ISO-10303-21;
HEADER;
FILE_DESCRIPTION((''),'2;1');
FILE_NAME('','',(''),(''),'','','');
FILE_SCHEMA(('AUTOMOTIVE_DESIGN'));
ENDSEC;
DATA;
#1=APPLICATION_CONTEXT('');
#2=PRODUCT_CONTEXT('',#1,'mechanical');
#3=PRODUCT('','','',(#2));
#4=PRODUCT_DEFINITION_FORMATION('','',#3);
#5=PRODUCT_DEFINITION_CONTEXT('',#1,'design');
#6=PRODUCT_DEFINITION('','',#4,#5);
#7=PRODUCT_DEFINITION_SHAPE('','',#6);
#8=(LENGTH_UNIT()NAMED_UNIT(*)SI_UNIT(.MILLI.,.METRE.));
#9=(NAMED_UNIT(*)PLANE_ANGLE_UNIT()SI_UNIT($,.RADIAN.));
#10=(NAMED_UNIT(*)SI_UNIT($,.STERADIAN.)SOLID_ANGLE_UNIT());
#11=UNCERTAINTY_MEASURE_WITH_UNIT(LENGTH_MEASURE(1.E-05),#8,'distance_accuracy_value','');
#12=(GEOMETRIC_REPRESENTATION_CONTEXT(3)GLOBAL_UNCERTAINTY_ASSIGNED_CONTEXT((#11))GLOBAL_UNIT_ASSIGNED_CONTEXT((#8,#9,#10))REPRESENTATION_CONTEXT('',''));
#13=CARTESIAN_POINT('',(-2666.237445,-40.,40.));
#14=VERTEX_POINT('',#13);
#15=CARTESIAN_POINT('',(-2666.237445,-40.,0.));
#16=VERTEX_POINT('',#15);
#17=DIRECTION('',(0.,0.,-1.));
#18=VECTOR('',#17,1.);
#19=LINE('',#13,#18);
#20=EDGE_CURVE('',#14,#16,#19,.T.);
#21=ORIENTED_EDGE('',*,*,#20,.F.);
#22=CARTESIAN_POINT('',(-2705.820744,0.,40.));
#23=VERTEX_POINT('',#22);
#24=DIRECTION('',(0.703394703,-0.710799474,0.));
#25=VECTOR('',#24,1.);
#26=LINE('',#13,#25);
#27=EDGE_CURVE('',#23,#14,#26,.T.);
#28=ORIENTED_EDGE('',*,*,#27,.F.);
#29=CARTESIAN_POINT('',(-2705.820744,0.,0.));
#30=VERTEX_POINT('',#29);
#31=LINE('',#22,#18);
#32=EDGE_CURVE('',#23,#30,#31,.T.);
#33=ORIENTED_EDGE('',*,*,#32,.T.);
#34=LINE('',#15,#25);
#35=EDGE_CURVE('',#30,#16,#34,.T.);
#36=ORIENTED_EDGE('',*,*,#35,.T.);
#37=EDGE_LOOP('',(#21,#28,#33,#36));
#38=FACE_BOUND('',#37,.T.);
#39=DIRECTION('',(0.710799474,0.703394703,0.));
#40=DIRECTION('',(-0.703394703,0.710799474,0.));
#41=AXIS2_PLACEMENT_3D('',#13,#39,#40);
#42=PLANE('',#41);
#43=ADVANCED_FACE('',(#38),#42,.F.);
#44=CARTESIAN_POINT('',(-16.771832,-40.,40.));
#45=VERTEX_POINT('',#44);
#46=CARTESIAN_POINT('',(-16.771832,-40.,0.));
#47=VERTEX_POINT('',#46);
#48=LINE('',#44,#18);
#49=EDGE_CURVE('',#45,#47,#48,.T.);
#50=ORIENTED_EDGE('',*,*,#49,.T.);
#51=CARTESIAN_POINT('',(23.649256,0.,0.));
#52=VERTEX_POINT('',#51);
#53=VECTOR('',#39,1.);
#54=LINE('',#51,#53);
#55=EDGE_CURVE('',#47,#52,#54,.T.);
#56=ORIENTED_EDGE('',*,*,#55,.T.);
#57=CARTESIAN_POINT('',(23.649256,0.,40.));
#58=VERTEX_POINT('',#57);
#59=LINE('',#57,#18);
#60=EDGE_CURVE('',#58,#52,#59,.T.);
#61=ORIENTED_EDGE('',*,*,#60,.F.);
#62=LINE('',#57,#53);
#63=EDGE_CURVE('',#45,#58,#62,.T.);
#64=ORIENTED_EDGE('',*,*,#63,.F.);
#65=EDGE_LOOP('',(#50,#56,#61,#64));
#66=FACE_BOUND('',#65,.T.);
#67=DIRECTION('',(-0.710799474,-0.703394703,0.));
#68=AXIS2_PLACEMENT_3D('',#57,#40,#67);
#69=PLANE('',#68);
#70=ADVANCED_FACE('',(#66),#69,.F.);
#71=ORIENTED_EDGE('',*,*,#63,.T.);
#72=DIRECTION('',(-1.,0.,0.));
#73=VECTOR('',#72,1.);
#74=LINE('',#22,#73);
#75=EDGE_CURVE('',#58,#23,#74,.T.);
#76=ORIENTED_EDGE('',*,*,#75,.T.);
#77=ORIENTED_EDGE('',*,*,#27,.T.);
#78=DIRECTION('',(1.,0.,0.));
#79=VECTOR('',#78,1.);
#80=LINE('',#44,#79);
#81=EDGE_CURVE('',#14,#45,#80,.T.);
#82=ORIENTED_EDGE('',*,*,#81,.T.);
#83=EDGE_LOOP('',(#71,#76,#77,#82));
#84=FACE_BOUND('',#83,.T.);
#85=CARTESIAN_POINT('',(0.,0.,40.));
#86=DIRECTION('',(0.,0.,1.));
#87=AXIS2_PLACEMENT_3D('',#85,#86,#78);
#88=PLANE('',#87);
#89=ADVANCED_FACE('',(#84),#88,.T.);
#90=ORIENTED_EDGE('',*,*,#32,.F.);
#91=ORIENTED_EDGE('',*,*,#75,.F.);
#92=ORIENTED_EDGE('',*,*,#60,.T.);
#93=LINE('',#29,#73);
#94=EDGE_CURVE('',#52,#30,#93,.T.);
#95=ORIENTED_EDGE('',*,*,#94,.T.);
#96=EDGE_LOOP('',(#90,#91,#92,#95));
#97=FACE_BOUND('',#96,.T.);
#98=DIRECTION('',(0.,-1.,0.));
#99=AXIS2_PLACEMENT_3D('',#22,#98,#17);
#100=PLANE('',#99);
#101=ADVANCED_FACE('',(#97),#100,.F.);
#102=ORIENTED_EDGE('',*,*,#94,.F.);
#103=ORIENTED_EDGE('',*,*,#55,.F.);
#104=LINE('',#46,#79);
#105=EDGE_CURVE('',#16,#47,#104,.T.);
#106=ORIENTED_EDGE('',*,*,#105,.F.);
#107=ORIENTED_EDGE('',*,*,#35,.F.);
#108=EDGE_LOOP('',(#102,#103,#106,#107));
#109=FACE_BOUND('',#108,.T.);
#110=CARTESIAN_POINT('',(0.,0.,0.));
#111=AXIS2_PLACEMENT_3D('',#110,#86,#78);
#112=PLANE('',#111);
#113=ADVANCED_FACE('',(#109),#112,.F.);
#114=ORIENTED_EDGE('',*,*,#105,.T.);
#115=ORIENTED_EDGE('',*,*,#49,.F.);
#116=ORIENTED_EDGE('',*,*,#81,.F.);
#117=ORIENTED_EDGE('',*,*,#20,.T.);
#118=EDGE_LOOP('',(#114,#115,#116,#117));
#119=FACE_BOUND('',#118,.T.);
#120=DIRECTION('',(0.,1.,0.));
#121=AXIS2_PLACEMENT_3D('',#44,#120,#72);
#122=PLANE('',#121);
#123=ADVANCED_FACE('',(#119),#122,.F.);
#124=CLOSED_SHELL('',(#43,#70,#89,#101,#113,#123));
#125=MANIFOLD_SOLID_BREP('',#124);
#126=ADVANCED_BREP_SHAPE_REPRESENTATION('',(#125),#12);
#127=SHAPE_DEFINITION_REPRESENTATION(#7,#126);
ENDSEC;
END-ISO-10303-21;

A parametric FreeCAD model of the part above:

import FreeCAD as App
import Part
import Sketcher
from FreeCAD import Vector
Q = App.Units.Quantity


def add_polygon(sketch, points):
    """Adds a closed chain of lines whose ends are joined by coincident constraints."""
    first, n = sketch.GeometryCount, len(points)
    for a, b in zip(points, points[1:] + points[:1]):
        sketch.addGeometry(Part.LineSegment(App.Vector(*a, 0), App.Vector(*b, 0)), False)
    for i in range(n):
        sketch.addConstraint(Sketcher.Constraint("Coincident", first + i, 2, first + (i + 1) % n, 1))

doc = App.newDocument("Part")
body = doc.addObject("PartDesign::Body", "Body")

sketch1 = body.newObject("Sketcher::SketchObject", "Sketch")
sketch1.AttachmentSupport = (doc.getObject("XY_Plane"), [""])
sketch1.MapMode = "FlatFace"
add_polygon(sketch1, [(24, 0), (-2706, 0), (-2666, -40), (-17, -40)])
sketch1.addConstraint(Sketcher.Constraint("Horizontal", 0))
sketch1.addConstraint(Sketcher.Constraint("Horizontal", 2))
sketch1.addConstraint(Sketcher.Constraint("PointOnObject", 0, 2, -1))
sketch1.addConstraint(Sketcher.Constraint("Perpendicular", 1, 3))
sketch1.addConstraint(Sketcher.Constraint("DistanceY", 1, 2, -1, 1, Q("40 mm")))
sketch1.addConstraint(Sketcher.Constraint("Angle", 1, Q("-45.3 deg")))
sketch1.addConstraint(Sketcher.Constraint("DistanceX", 0, 2, 0, 1, Q("2729.47 mm")))
sketch1.addConstraint(Sketcher.Constraint("DistanceX", 2, 2, -1, 1, Q("16.771832 mm")))
pad1 = body.newObject("PartDesign::Pad", "Pad")
pad1.Profile = sketch1
pad1.Length = 40

doc.recompute()
